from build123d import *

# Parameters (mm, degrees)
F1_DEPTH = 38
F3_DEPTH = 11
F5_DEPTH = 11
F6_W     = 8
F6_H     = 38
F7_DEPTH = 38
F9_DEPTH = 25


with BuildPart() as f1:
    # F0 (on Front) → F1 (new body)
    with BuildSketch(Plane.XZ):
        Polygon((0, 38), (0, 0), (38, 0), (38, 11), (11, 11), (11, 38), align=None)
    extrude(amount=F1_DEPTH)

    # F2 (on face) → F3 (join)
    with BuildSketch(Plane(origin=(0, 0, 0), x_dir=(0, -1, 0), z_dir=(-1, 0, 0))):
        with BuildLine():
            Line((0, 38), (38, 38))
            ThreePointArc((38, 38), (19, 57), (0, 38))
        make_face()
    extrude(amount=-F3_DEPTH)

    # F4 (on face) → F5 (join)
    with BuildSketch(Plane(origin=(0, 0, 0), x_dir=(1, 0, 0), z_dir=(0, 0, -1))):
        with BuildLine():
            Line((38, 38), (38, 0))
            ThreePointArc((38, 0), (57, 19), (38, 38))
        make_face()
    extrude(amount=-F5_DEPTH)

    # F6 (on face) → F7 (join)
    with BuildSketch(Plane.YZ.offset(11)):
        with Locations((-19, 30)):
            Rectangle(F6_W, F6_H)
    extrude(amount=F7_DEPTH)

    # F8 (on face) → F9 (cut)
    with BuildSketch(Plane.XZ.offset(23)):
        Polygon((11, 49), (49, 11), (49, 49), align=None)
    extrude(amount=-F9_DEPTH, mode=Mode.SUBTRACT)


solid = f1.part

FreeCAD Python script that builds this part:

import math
import FreeCAD as App
import Part
import Sketcher
from FreeCAD import Vector


def add_polygon(sketch, points):
    """Adds a closed chain of lines whose ends are joined by coincident constraints."""
    first, n = sketch.GeometryCount, len(points)
    for a, b in zip(points, points[1:] + points[:1]):
        sketch.addGeometry(Part.LineSegment(App.Vector(*a, 0), App.Vector(*b, 0)), False)
    for i in range(n):
        sketch.addConstraint(Sketcher.Constraint("Coincident", first + i, 2, first + (i + 1) % n, 1))

doc = App.newDocument("Part")
body = doc.addObject("PartDesign::Body", "Body")

sketch1 = body.newObject("Sketcher::SketchObject", "Sketch")
sketch1.AttachmentSupport = (doc.getObject("XZ_Plane"), [""])
sketch1.MapMode = "FlatFace"
add_polygon(sketch1, [(0, 38), (0, 0), (38, 0), (38, 11), (11, 11), (11, 38)])
sketch1.addConstraint(Sketcher.Constraint("Vertical", 0))
sketch1.addConstraint(Sketcher.Constraint("Horizontal", 1))
sketch1.addConstraint(Sketcher.Constraint("Vertical", 2))
sketch1.addConstraint(Sketcher.Constraint("Horizontal", 3))
sketch1.addConstraint(Sketcher.Constraint("Vertical", 4))
sketch1.addConstraint(Sketcher.Constraint("Horizontal", 5))
sketch1.addConstraint(Sketcher.Constraint("Coincident", 0, 2, -1, 1))
sketch1.addConstraint(Sketcher.Constraint("Equal", 1, 0))
sketch1.addConstraint(Sketcher.Constraint("Equal", 5, 2))
sketch1.addConstraint(Sketcher.Constraint("DistanceX", 1, 1, 1, 2, 38.0))
sketch1.addConstraint(Sketcher.Constraint("DistanceX", 3, 2, 3, 1, 27.0))
pad1 = body.newObject("PartDesign::Pad", "Pad")
pad1.Profile = sketch1
pad1.Length = 38

sketch2 = body.newObject("Sketcher::SketchObject", "Sketch001")
sketch2.AttachmentSupport = (doc.getObject("YZ_Plane"), [""])
sketch2.MapMode = "FlatFace"
sketch2.addGeometry(Part.LineSegment(Vector(0, 38, 0), Vector(-38, 38, 0)), False)
sketch2.addGeometry(Part.ArcOfCircle(Part.Circle(Vector(-19, 38, 0), Vector(0, 0, 1), 19), math.radians(0), math.radians(180)), False)
sketch2.addConstraint(Sketcher.Constraint("Coincident", 0, 1, 1, 1))
sketch2.addConstraint(Sketcher.Constraint("Coincident", 1, 2, 0, 2))
sketch2.addConstraint(Sketcher.Constraint("Horizontal", 0))
sketch2.addConstraint(Sketcher.Constraint("PointOnObject", 0, 1, -2))
sketch2.addConstraint(Sketcher.Constraint("Horizontal", 1, 3, 0, 1))
sketch2.addConstraint(Sketcher.Constraint("Radius", 1, 19.0))
sketch2.addConstraint(Sketcher.Constraint("DistanceY", -1, 1, 1, 3, 38.0))
pad2 = body.newObject("PartDesign::Pad", "Pad001")
pad2.Profile = sketch2
pad2.Length = 11

sketch3 = body.newObject("Sketcher::SketchObject", "Sketch002")
sketch3.AttachmentSupport = (doc.getObject("XY_Plane"), [""])
sketch3.MapMode = "FlatFace"
sketch3.addGeometry(Part.LineSegment(Vector(38, -38, 0), Vector(38, 0, 0)), False)
sketch3.addGeometry(Part.ArcOfCircle(Part.Circle(Vector(38, -19, 0), Vector(0, 0, 1), 19), math.radians(-90), math.radians(90)), False)
sketch3.addConstraint(Sketcher.Constraint("Coincident", 0, 1, 1, 1))
sketch3.addConstraint(Sketcher.Constraint("Coincident", 1, 2, 0, 2))
sketch3.addConstraint(Sketcher.Constraint("Vertical", 0))
sketch3.addConstraint(Sketcher.Constraint("PointOnObject", 1, 2, -1))
sketch3.addConstraint(Sketcher.Constraint("Vertical", 1, 3, 0, 1))
sketch3.addConstraint(Sketcher.Constraint("Radius", 1, 19.0))
sketch3.addConstraint(Sketcher.Constraint("DistanceX", -1, 1, 1, 3, 38.0))
pad3 = body.newObject("PartDesign::Pad", "Pad002")
pad3.Profile = sketch3
pad3.Length = 11

sketch4 = body.newObject("Sketcher::SketchObject", "Sketch003")
sketch4.AttachmentSupport = (doc.getObject("YZ_Plane"), [""])
sketch4.MapMode = "FlatFace"
sketch4.AttachmentOffset = App.Placement(Vector(0, 0, 11), App.Rotation())
add_polygon(sketch4, [(-23, 49), (-23, 11), (-15, 11), (-15, 49)])
sketch4.addConstraint(Sketcher.Constraint("Vertical", 0))
sketch4.addConstraint(Sketcher.Constraint("Horizontal", 1))
sketch4.addConstraint(Sketcher.Constraint("Vertical", 2))
sketch4.addConstraint(Sketcher.Constraint("Horizontal", 3))
sketch4.addConstraint(Sketcher.Constraint("DistanceX", 1, 1, 1, 2, 8.0))
sketch4.addConstraint(Sketcher.Constraint("DistanceY", 0, 2, 0, 1, 38.0))
sketch4.addConstraint(Sketcher.Constraint("DistanceX", 0, 2, -1, 1, 23.0))
sketch4.addConstraint(Sketcher.Constraint("DistanceY", -1, 1, 0, 2, 11.0))
pad4 = body.newObject("PartDesign::Pad", "Pad003")
pad4.Profile = sketch4
pad4.Length = 38

sketch5 = body.newObject("Sketcher::SketchObject", "Sketch004")
sketch5.AttachmentSupport = (doc.getObject("XZ_Plane"), [""])
sketch5.MapMode = "FlatFace"
sketch5.AttachmentOffset = App.Placement(Vector(0, 0, 23), App.Rotation())
add_polygon(sketch5, [(11, 49), (49, 11), (49, 49)])
sketch5.addConstraint(Sketcher.Constraint("Vertical", 1))
sketch5.addConstraint(Sketcher.Constraint("Horizontal", 2))
sketch5.addConstraint(Sketcher.Constraint("Equal", 2, 1))
sketch5.addConstraint(Sketcher.Constraint("DistanceX", 2, 2, 2, 1, 38.0))
sketch5.addConstraint(Sketcher.Constraint("DistanceX", -1, 1, 0, 2, 49.0))
sketch5.addConstraint(Sketcher.Constraint("DistanceY", -1, 1, 0, 2, 11.0))
pocket1 = body.newObject("PartDesign::Pocket", "Pocket")
pocket1.Profile = sketch5
pocket1.Length = 25

doc.recompute()
